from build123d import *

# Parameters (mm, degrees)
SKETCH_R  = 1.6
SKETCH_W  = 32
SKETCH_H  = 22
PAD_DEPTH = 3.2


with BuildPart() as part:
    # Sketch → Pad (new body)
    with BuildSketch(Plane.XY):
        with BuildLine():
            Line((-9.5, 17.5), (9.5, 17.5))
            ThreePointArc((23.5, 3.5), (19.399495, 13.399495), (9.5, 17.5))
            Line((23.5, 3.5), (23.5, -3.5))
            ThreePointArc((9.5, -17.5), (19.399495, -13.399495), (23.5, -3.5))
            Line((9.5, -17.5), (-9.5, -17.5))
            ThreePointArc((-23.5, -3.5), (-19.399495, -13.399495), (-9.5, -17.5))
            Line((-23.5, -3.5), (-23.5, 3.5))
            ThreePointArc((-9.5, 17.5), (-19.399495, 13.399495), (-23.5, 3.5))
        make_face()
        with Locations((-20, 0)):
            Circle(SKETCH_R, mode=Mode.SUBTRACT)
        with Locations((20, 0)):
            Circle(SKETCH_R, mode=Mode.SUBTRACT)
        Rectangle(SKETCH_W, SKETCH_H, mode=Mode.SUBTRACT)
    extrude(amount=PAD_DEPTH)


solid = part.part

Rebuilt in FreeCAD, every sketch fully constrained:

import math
import FreeCAD as App
import Part
import Sketcher

V = App.Vector
Q = App.Units.Quantity

doc = App.newDocument("Part")
body = doc.addObject("PartDesign::Body", "Body")

sketch1 = doc.addObject("Sketcher::SketchObject", "Sketch")
body.addObject(sketch1)
sketch1.AttachmentSupport = (doc.XY_Plane, [""])
sketch1.MapMode = "FlatFace"
sketch1.addGeometry(Part.LineSegment(V(9.5, 17.5, 0), V(-9.5, 17.5, 0)), False)
sketch1.addGeometry(Part.ArcOfCircle(Part.Circle(V(-9.5, 3.5, 0), V(0, 0, 1), 14), math.radians(89.999999), math.radians(180.000001)), False)
sketch1.addGeometry(Part.LineSegment(V(-23.5, 3.5, 0), V(-23.5, -3.5, 0)), False)
sketch1.addGeometry(Part.ArcOfCircle(Part.Circle(V(-9.5, -3.5, 0), V(0, 0, 1), 14), math.radians(179.999999), math.radians(270.000001)), False)
sketch1.addGeometry(Part.LineSegment(V(-9.5, -17.5, 0), V(9.5, -17.5, 0)), False)
sketch1.addGeometry(Part.ArcOfCircle(Part.Circle(V(9.5, -3.5, 0), V(0, 0, 1), 14), math.radians(-90.000001), math.radians(0.000001)), False)
sketch1.addGeometry(Part.LineSegment(V(23.5, -3.5, 0), V(23.5, 3.5, 0)), False)
sketch1.addGeometry(Part.ArcOfCircle(Part.Circle(V(9.5, 3.5, 0), V(0, 0, 1), 14), math.radians(-0.000001), math.radians(90.000001)), False)
sketch1.addGeometry(Part.Circle(V(20, 0, 0), V(0, 0, 1), 1.6), False)
sketch1.addGeometry(Part.LineSegment(V(-16, -11, 0), V(-16, 11, 0)), False)
sketch1.addGeometry(Part.LineSegment(V(-16, 11, 0), V(16, 11, 0)), False)
sketch1.addGeometry(Part.LineSegment(V(16, 11, 0), V(16, -11, 0)), False)
sketch1.addGeometry(Part.LineSegment(V(16, -11, 0), V(-16, -11, 0)), False)
sketch1.addGeometry(Part.Circle(V(-20, 0, 0), V(0, 0, 1), 1.6), False)
sketch1.addConstraint(Sketcher.Constraint("Tangent", 0, 2, 1, 1))
sketch1.addConstraint(Sketcher.Constraint("Tangent", 1, 2, 2, 1))
sketch1.addConstraint(Sketcher.Constraint("Tangent", 2, 2, 3, 1))
sketch1.addConstraint(Sketcher.Constraint("Tangent", 3, 2, 4, 1))
sketch1.addConstraint(Sketcher.Constraint("Tangent", 4, 2, 5, 1))
sketch1.addConstraint(Sketcher.Constraint("Tangent", 5, 2, 6, 1))
sketch1.addConstraint(Sketcher.Constraint("Tangent", 6, 2, 7, 1))
sketch1.addConstraint(Sketcher.Constraint("Tangent", 7, 2, 0, 1))
sketch1.addConstraint(Sketcher.Constraint("Coincident", 9, 2, 10, 1))
sketch1.addConstraint(Sketcher.Constraint("Coincident", 10, 2, 11, 1))
sketch1.addConstraint(Sketcher.Constraint("Coincident", 11, 2, 12, 1))
sketch1.addConstraint(Sketcher.Constraint("Coincident", 12, 2, 9, 1))
sketch1.addConstraint(Sketcher.Constraint("Horizontal", 0))
sketch1.addConstraint(Sketcher.Constraint("Vertical", 2))
sketch1.addConstraint(Sketcher.Constraint("Horizontal", 4))
sketch1.addConstraint(Sketcher.Constraint("Vertical", 6))
sketch1.addConstraint(Sketcher.Constraint("Vertical", 9))
sketch1.addConstraint(Sketcher.Constraint("Horizontal", 10))
sketch1.addConstraint(Sketcher.Constraint("Vertical", 11))
sketch1.addConstraint(Sketcher.Constraint("Horizontal", 12))
sketch1.addConstraint(Sketcher.Constraint("Equal", 1, 3))
sketch1.addConstraint(Sketcher.Constraint("Equal", 3, 5))
sketch1.addConstraint(Sketcher.Constraint("Equal", 5, 7))
sketch1.addConstraint(Sketcher.Constraint("Equal", 8, 13))
sketch1.addConstraint(Sketcher.Constraint("Symmetric", 1, 3, 5, 3, -1, 1))
sketch1.addConstraint(Sketcher.Constraint("Symmetric", 8, 3, 13, 3, -1, 1))
sketch1.addConstraint(Sketcher.Constraint("Symmetric", 9, 2, 11, 2, -1, 1))
sketch1.addConstraint(Sketcher.Constraint("PointOnObject", 8, 3, -1))
sketch1.addConstraint(Sketcher.Constraint("Radius", 1, Q("14 mm")))
sketch1.addConstraint(Sketcher.Constraint("Diameter", 8, Q("3.2 mm")))
sketch1.addConstraint(Sketcher.Constraint("DistanceX", 0, 2, 0, 1, Q("19 mm")))
sketch1.addConstraint(Sketcher.Constraint("DistanceX", 10, 1, 10, 2, Q("32 mm")))
sketch1.addConstraint(Sketcher.Constraint("DistanceY", 2, 2, 2, 1, Q("7 mm")))
sketch1.addConstraint(Sketcher.Constraint("DistanceY", 9, 1, 9, 2, Q("22 mm")))
sketch1.addConstraint(Sketcher.Constraint("DistanceX", -1, 1, 8, 3, Q("20 mm")))
pad1 = doc.addObject("PartDesign::Pad", "Pad")
body.addObject(pad1)
pad1.Profile = sketch1
pad1.Length = 3.2

doc.recompute()
